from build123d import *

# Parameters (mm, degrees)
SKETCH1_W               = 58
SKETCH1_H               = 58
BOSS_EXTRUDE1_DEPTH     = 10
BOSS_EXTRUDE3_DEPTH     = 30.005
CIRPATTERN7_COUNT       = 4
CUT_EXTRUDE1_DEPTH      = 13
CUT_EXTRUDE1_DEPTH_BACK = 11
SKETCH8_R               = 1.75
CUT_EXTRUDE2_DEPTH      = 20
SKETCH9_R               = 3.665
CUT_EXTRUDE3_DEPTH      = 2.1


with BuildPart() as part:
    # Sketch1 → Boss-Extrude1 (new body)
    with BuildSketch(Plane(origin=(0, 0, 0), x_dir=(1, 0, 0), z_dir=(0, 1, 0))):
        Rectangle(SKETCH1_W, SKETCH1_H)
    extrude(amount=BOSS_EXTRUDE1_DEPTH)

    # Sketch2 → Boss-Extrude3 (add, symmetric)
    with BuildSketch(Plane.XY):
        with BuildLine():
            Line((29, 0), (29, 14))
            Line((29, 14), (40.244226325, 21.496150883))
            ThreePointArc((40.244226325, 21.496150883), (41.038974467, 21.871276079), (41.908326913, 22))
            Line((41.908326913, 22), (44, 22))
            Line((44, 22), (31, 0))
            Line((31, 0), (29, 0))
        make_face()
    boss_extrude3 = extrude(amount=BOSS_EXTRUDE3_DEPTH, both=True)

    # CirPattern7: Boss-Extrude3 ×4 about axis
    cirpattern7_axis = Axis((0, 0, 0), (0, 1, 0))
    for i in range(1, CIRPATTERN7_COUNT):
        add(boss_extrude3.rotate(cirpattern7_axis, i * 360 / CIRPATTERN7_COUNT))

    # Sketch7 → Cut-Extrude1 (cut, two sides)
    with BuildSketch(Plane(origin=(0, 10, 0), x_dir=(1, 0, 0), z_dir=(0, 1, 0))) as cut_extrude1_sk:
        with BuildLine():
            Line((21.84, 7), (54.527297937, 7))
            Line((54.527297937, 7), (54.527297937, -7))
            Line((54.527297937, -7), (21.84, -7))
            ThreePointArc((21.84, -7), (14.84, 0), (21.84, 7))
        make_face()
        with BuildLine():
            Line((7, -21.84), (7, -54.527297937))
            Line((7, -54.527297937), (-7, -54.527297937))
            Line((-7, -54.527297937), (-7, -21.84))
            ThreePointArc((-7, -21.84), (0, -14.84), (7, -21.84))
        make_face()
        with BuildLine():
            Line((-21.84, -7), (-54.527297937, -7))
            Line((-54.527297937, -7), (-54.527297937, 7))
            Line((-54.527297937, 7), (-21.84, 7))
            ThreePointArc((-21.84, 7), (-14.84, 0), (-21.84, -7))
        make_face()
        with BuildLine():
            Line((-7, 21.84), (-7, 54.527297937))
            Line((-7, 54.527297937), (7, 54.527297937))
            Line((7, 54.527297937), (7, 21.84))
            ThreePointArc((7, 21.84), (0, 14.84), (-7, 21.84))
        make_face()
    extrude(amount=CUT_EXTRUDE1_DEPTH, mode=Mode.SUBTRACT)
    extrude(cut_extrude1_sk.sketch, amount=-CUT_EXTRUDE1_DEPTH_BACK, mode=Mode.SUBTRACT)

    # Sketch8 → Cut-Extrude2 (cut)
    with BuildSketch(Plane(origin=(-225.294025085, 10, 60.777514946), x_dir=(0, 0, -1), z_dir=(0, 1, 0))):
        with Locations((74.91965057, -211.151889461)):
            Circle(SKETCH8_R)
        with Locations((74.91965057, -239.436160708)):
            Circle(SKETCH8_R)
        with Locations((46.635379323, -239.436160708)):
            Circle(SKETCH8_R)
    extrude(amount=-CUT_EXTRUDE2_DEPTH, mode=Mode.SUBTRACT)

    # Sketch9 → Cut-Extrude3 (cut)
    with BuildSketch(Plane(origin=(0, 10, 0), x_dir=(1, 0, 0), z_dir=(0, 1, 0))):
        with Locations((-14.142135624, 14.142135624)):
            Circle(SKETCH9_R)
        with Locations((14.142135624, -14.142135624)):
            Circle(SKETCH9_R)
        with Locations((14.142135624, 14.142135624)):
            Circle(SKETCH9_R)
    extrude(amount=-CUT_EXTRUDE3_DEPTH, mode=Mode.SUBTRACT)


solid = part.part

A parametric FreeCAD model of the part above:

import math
import FreeCAD as App
import Part
import Sketcher

V = App.Vector

doc = App.newDocument("Part")
body = doc.addObject("PartDesign::Body", "Body")

# Sketch on XZ plane
sketch1 = body.newObject("Sketcher::SketchObject", "Sketch")
sketch1.AttachmentSupport = (doc.getObject("XZ_Plane"), [""])
sketch1.MapMode = "FlatFace"
sketch1.addGeometry([
    Part.LineSegment(V(-29, -29, 0), V(-29, 29, 0)),
    Part.LineSegment(V(-29, 29, 0), V(29, 29, 0)),
    Part.LineSegment(V(29, 29, 0), V(29, -29, 0)),
    Part.LineSegment(V(29, -29, 0), V(-29, -29, 0)),
], False)
sketch1.addConstraint([
    Sketcher.Constraint("Coincident", 0, 2, 1, 1),
    Sketcher.Constraint("Coincident", 1, 2, 2, 1),
    Sketcher.Constraint("Coincident", 2, 2, 3, 1),
    Sketcher.Constraint("Coincident", 3, 2, 0, 1),
    Sketcher.Constraint("Vertical", 0),
    Sketcher.Constraint("Horizontal", 1),
    Sketcher.Constraint("Vertical", 2),
    Sketcher.Constraint("Horizontal", 3),
    Sketcher.Constraint("Symmetric", 0, 2, 2, 2, -1, 1),
    Sketcher.Constraint("Equal", 3, 0),
    Sketcher.Constraint("DistanceX", 1, 1, 1, 2, 58.0),
])
pad1 = body.newObject("PartDesign::Pad", "Pad")
pad1.Profile = sketch1
pad1.Length = 10
pad1.Reversed = True

# Sketch on XY plane
sketch2 = body.newObject("Sketcher::SketchObject", "Sketch001")
sketch2.AttachmentSupport = (doc.getObject("XY_Plane"), [""])
sketch2.MapMode = "FlatFace"
sketch2.addGeometry([
    Part.LineSegment(V(29, 14, 0), V(29, 0, 0)),  # 0
    Part.LineSegment(V(29, 0, 0), V(31, 0, 0)),  # 1
    Part.LineSegment(V(31, 0, 0), V(44, 22, 0)),  # 2
    Part.LineSegment(V(44, 22, 0), V(41.9, 22, 0)),  # 3
    Part.ArcOfCircle(Part.Circle(V(41.9, 19, 0), V(0, 0, 1), 3), math.radians(90), math.radians(124)),  # 4
    Part.LineSegment(V(40.2, 21.5, 0), V(29, 14, 0)),  # 5
], False)
sketch2.addConstraint([
    Sketcher.Constraint("Coincident", 0, 2, 1, 1),
    Sketcher.Constraint("Coincident", 1, 2, 2, 1),
    Sketcher.Constraint("Coincident", 2, 2, 3, 1),
    Sketcher.Constraint("Tangent", 3, 2, 4, 1),
    Sketcher.Constraint("Tangent", 4, 2, 5, 1),
    Sketcher.Constraint("Coincident", 5, 2, 0, 1),
    Sketcher.Constraint("Vertical", 0),
    Sketcher.Constraint("Horizontal", 1),
    Sketcher.Constraint("Horizontal", 3),
    Sketcher.Constraint("PointOnObject", 0, 2, -1),
    Sketcher.Constraint("Radius", 4, 3.0),
    Sketcher.Constraint("DistanceX", 1, 1, 1, 2, 2.0),
    Sketcher.Constraint("DistanceY", 0, 2, 0, 1, 14.0),
    Sketcher.Constraint("DistanceY", -1, 1, 4, 3, 19.0),
    Sketcher.Constraint("DistanceX", -1, 1, 0, 2, 29.0),
    Sketcher.Constraint("DistanceX", -1, 1, 2, 2, 44.0),
    Sketcher.Constraint("DistanceX", 4, 2, 3, 2, 1.664101),
])
pad2 = body.newObject("PartDesign::Pad", "Pad001")
pad2.Profile = sketch2
pad2.Length = 60.01
pad2.Midplane = True
doc.recompute()

polarpattern = body.newObject("PartDesign::PolarPattern", "PolarPattern")
polarpattern.Originals = [pad2]
polarpattern.Axis = (doc.getObject("Y_Axis"), [""])
polarpattern.Angle = 360
polarpattern.Occurrences = 4
body.Tip = polarpattern

# Sketch on XZ plane
sketch3 = body.newObject("Sketcher::SketchObject", "Sketch002")
sketch3.AttachmentSupport = (doc.getObject("XZ_Plane"), [""])
sketch3.MapMode = "FlatFace"
sketch3.AttachmentOffset = App.Placement(V(0, 0, -10), App.Rotation())
sketch3.addGeometry([
    Part.LineSegment(V(55, -7, 0), V(22, -7, 0)),  # 0
    Part.ArcOfCircle(Part.Circle(V(22, 0, 0), V(0, 0, 1), 7), math.radians(90), math.radians(270)),  # 1
    Part.LineSegment(V(22, 7, 0), V(55, 7, 0)),  # 2
    Part.LineSegment(V(55, 7, 0), V(55, -7, 0)),  # 3
    Part.LineSegment(V(7, 55, 0), V(7, 22, 0)),  # 4
    Part.ArcOfCircle(Part.Circle(V(0, 22, 0), V(0, 0, 1), 7), math.radians(180), math.radians(360)),  # 5
    Part.LineSegment(V(-7, 22, 0), V(-7, 55, 0)),  # 6
    Part.LineSegment(V(-7, 55, 0), V(7, 55, 0)),  # 7
    Part.LineSegment(V(-55, 7, 0), V(-22, 7, 0)),  # 8
    Part.ArcOfCircle(Part.Circle(V(-22, 0, 0), V(0, 0, 1), 7), math.radians(-90), math.radians(90)),  # 9
    Part.LineSegment(V(-22, -7, 0), V(-55, -7, 0)),  # 10
    Part.LineSegment(V(-55, -7, 0), V(-55, 7, 0)),  # 11
    Part.LineSegment(V(-7, -55, 0), V(-7, -22, 0)),  # 12
    Part.ArcOfCircle(Part.Circle(V(0, -22, 0), V(0, 0, 1), 7), math.radians(0), math.radians(180)),  # 13
    Part.LineSegment(V(7, -22, 0), V(7, -55, 0)),  # 14
    Part.LineSegment(V(7, -55, 0), V(-7, -55, 0)),  # 15
], False)
sketch3.addConstraint([
    Sketcher.Constraint("Tangent", 0, 2, 1, 2),
    Sketcher.Constraint("Tangent", 1, 1, 2, 1),
    Sketcher.Constraint("Coincident", 2, 2, 3, 1),
    Sketcher.Constraint("Coincident", 3, 2, 0, 1),
    Sketcher.Constraint("Tangent", 4, 2, 5, 2),
    Sketcher.Constraint("Tangent", 5, 1, 6, 1),
    Sketcher.Constraint("Coincident", 6, 2, 7, 1),
    Sketcher.Constraint("Coincident", 7, 2, 4, 1),
    Sketcher.Constraint("Tangent", 8, 2, 9, 2),
    Sketcher.Constraint("Tangent", 9, 1, 10, 1),
    Sketcher.Constraint("Coincident", 10, 2, 11, 1),
    Sketcher.Constraint("Coincident", 11, 2, 8, 1),
    Sketcher.Constraint("Tangent", 12, 2, 13, 2),
    Sketcher.Constraint("Tangent", 13, 1, 14, 1),
    Sketcher.Constraint("Coincident", 14, 2, 15, 1),
    Sketcher.Constraint("Coincident", 15, 2, 12, 1),
    Sketcher.Constraint("Horizontal", 0),
    Sketcher.Constraint("Horizontal", 2),
    Sketcher.Constraint("Vertical", 3),
    Sketcher.Constraint("Vertical", 4),
    Sketcher.Constraint("Vertical", 6),
    Sketcher.Constraint("Horizontal", 7),
    Sketcher.Constraint("Horizontal", 8),
    Sketcher.Constraint("Horizontal", 10),
    Sketcher.Constraint("Vertical", 11),
    Sketcher.Constraint("Vertical", 12),
    Sketcher.Constraint("Vertical", 14),
    Sketcher.Constraint("Horizontal", 15),
    Sketcher.Constraint("Equal", 1, 5),
    Sketcher.Constraint("Equal", 5, 9),
    Sketcher.Constraint("Equal", 9, 13),
    Sketcher.Constraint("Symmetric", 1, 3, 9, 3, -1, 1),
    Sketcher.Constraint("Symmetric", 5, 3, 13, 3, -1, 1),
    Sketcher.Constraint("Symmetric", 3, 2, 10, 2, -2),
    Sketcher.Constraint("Symmetric", 7, 2, 14, 2, -1),
    Sketcher.Constraint("Equal", 10, 4),
    Sketcher.Constraint("Radius", 1, 7.0),
    Sketcher.Constraint("DistanceX", -1, 1, 1, 3, 21.84),
    Sketcher.Constraint("DistanceY", -1, 1, 5, 3, 21.84),
    Sketcher.Constraint("DistanceX", 0, 2, 0, 1, 32.687298),
])
pocket1 = body.newObject("PartDesign::Pocket", "Pocket")
pocket1.Profile = sketch3
pocket1.Type = "ThroughAll"
pocket1.Midplane = True

# Sketch on XZ plane
sketch4 = body.newObject("Sketcher::SketchObject", "Sketch003")
sketch4.AttachmentSupport = (doc.getObject("XZ_Plane"), [""])
sketch4.MapMode = "FlatFace"
sketch4.AttachmentOffset = App.Placement(V(0, 0, -10), App.Rotation())
sketch4.addGeometry([
    Part.Circle(V(-14.1, -14.1, 0), V(0, 0, 1), 1.8),
    Part.Circle(V(14.1, -14.1, 0), V(0, 0, 1), 1.8),
    Part.Circle(V(14.1, 14.1, 0), V(0, 0, 1), 1.8),
], False)
sketch4.addConstraint([
    Sketcher.Constraint("Equal", 0, 1),
    Sketcher.Constraint("Equal", 1, 2),
    Sketcher.Constraint("Symmetric", 0, 3, 2, 3, -1, 1),
    Sketcher.Constraint("Symmetric", 0, 3, 1, 3, -2),
    Sketcher.Constraint("Diameter", 0, 3.5),
    Sketcher.Constraint("DistanceX", 0, 3, 1, 3, 28.284271),
    Sketcher.Constraint("DistanceY", 1, 3, 2, 3, 28.284271),
])
pocket2 = body.newObject("PartDesign::Pocket", "Pocket001")
pocket2.Profile = sketch4
pocket2.Length = 20
pocket2.Reversed = True

# Sketch on XZ plane
sketch5 = body.newObject("Sketcher::SketchObject", "Sketch004")
sketch5.AttachmentSupport = (doc.getObject("XZ_Plane"), [""])
sketch5.MapMode = "FlatFace"
sketch5.AttachmentOffset = App.Placement(V(0, 0, -10), App.Rotation())
sketch5.addGeometry([
    Part.Circle(V(-14.1, -14.1, 0), V(0, 0, 1), 3.7),
    Part.Circle(V(14.1, 14.1, 0), V(0, 0, 1), 3.7),
    Part.Circle(V(14.1, -14.1, 0), V(0, 0, 1), 3.7),
], False)
sketch5.addConstraint([
    Sketcher.Constraint("Equal", 0, 1),
    Sketcher.Constraint("Equal", 1, 2),
    Sketcher.Constraint("Symmetric", 0, 3, 1, 3, -1, 1),
    Sketcher.Constraint("Symmetric", 0, 3, 2, 3, -2),
    Sketcher.Constraint("Diameter", 0, 7.33),
    Sketcher.Constraint("DistanceX", 0, 3, 1, 3, 28.284271),
    Sketcher.Constraint("DistanceY", 0, 3, 1, 3, 28.284271),
])
pocket3 = body.newObject("PartDesign::Pocket", "Pocket002")
pocket3.Profile = sketch5
pocket3.Length = 2.1
pocket3.Reversed = True

doc.recompute()
